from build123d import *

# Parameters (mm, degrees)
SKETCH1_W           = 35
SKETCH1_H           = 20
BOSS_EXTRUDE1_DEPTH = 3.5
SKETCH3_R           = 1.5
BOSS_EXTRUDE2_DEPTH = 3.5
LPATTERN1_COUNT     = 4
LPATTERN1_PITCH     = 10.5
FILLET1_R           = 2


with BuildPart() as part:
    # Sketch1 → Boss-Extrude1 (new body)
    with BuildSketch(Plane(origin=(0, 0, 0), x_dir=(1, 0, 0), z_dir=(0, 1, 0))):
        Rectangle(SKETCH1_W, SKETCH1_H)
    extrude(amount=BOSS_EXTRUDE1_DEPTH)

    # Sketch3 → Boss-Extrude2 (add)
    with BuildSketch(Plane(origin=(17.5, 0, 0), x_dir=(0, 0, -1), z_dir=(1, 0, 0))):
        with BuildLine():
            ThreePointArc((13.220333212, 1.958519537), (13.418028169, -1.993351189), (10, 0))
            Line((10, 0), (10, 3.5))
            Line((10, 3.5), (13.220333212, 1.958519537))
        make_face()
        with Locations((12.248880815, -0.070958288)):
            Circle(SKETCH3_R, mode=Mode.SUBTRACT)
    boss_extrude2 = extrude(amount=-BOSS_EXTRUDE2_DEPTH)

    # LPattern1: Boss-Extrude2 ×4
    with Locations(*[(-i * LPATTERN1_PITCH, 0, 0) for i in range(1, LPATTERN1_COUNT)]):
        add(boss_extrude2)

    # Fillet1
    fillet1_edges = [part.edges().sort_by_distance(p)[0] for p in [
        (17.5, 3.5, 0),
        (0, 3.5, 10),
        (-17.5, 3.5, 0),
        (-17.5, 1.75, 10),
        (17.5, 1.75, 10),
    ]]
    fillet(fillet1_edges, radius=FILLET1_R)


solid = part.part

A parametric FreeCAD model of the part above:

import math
import FreeCAD as App
import Part
import Sketcher
from FreeCAD import Vector
Q = App.Units.Quantity


def edges_at(feature, points):
    """Names of the edges that pass closest to the given points."""
    edges = feature.Shape.Edges
    near = lambda p: min(range(len(edges)), key=lambda i: edges[i].distToShape(Part.Vertex(*p))[0])
    return sorted({f"Edge{near(p) + 1}" for p in points})

doc = App.newDocument("Part")
body = doc.addObject("PartDesign::Body", "Body")

# Sketch on XZ plane
sketch1 = body.newObject("Sketcher::SketchObject", "Sketch")
sketch1.AttachmentSupport = (doc.getObject("XZ_Plane"), [""])
sketch1.MapMode = "FlatFace"
sketch1.addGeometry([
    Part.LineSegment(Vector(-18, -10, 0), Vector(-18, 10, 0)),
    Part.LineSegment(Vector(-18, 10, 0), Vector(18, 10, 0)),
    Part.LineSegment(Vector(18, 10, 0), Vector(18, -10, 0)),
    Part.LineSegment(Vector(18, -10, 0), Vector(-18, -10, 0)),
], False)
sketch1.addConstraint([
    Sketcher.Constraint("Coincident", 0, 2, 1, 1),
    Sketcher.Constraint("Coincident", 1, 2, 2, 1),
    Sketcher.Constraint("Coincident", 2, 2, 3, 1),
    Sketcher.Constraint("Coincident", 3, 2, 0, 1),
    Sketcher.Constraint("Vertical", 0),
    Sketcher.Constraint("Horizontal", 1),
    Sketcher.Constraint("Vertical", 2),
    Sketcher.Constraint("Horizontal", 3),
    Sketcher.Constraint("Symmetric", 0, 2, 2, 2, -1, 1),
    Sketcher.Constraint("DistanceX", 1, 1, 1, 2, Q("35 mm")),
    Sketcher.Constraint("DistanceY", 0, 1, 0, 2, Q("20 mm")),
])
pad1 = body.newObject("PartDesign::Pad", "Pad")
pad1.Profile = sketch1
pad1.Length = 3.5
pad1.Reversed = True

# Sketch on YZ plane
sketch2 = body.newObject("Sketcher::SketchObject", "Sketch001")
sketch2.AttachmentSupport = (doc.getObject("YZ_Plane"), [""])
sketch2.MapMode = "FlatFace"
sketch2.AttachmentOffset = App.Placement(Vector(0, 0, 17.5), App.Rotation())
sketch2.addGeometry([
    Part.ArcOfCircle(Part.Circle(Vector(-0.1, -12.2, 0), Vector(0, 0, 1), 2.2), math.radians(88), math.radians(334)),
    Part.LineSegment(Vector(2, -13.2, 0), Vector(3.5, -10, 0)),
    Part.LineSegment(Vector(3.5, -10, 0), Vector(0, -10, 0)),
    Part.Circle(Vector(-0.1, -12.2, 0), Vector(0, 0, 1), 1.5),
], False)
sketch2.addConstraint([
    Sketcher.Constraint("Tangent", 0, 2, 1, 1),
    Sketcher.Constraint("Coincident", 1, 2, 2, 1),
    Sketcher.Constraint("Coincident", 2, 2, 0, 1),
    Sketcher.Constraint("Horizontal", 2),
    Sketcher.Constraint("Coincident", 3, 3, 0, 3),
    Sketcher.Constraint("PointOnObject", 2, 2, -2),
    Sketcher.Constraint("Diameter", 3, Q("3 mm")),
    Sketcher.Constraint("Radius", 0, Q("2.25 mm")),
    Sketcher.Constraint("DistanceX", 2, 2, 2, 1, Q("3.5 mm")),
    Sketcher.Constraint("DistanceY", 1, 2, -1, 1, Q("10 mm")),
    Sketcher.Constraint("DistanceX", 0, 3, -1, 1, Q("0.070958 mm")),
])
pad2 = body.newObject("PartDesign::Pad", "Pad001")
pad2.Profile = sketch2
pad2.Length = 3.5
pad2.Reversed = True
doc.recompute()

linearpattern = body.newObject("PartDesign::LinearPattern", "LinearPattern")
linearpattern.Originals = [pad2]
linearpattern.Direction = (doc.getObject("X_Axis"), [""])
linearpattern.Mode = "offset"
linearpattern.Offset = 10.5
linearpattern.Occurrences = 4
linearpattern.Reversed = True
body.Tip = linearpattern
doc.recompute()

fillet = body.newObject("PartDesign::Fillet", "Fillet")
fillet.Base = (linearpattern, edges_at(linearpattern, [
    (17.5, 3.5, 0),
    (0, 3.5, 10),
    (-17.5, 3.5, 0),
    (-17.5, 1.75, 10),
    (17.5, 1.75, 10),
]))
fillet.Radius = 2

doc.recompute()
